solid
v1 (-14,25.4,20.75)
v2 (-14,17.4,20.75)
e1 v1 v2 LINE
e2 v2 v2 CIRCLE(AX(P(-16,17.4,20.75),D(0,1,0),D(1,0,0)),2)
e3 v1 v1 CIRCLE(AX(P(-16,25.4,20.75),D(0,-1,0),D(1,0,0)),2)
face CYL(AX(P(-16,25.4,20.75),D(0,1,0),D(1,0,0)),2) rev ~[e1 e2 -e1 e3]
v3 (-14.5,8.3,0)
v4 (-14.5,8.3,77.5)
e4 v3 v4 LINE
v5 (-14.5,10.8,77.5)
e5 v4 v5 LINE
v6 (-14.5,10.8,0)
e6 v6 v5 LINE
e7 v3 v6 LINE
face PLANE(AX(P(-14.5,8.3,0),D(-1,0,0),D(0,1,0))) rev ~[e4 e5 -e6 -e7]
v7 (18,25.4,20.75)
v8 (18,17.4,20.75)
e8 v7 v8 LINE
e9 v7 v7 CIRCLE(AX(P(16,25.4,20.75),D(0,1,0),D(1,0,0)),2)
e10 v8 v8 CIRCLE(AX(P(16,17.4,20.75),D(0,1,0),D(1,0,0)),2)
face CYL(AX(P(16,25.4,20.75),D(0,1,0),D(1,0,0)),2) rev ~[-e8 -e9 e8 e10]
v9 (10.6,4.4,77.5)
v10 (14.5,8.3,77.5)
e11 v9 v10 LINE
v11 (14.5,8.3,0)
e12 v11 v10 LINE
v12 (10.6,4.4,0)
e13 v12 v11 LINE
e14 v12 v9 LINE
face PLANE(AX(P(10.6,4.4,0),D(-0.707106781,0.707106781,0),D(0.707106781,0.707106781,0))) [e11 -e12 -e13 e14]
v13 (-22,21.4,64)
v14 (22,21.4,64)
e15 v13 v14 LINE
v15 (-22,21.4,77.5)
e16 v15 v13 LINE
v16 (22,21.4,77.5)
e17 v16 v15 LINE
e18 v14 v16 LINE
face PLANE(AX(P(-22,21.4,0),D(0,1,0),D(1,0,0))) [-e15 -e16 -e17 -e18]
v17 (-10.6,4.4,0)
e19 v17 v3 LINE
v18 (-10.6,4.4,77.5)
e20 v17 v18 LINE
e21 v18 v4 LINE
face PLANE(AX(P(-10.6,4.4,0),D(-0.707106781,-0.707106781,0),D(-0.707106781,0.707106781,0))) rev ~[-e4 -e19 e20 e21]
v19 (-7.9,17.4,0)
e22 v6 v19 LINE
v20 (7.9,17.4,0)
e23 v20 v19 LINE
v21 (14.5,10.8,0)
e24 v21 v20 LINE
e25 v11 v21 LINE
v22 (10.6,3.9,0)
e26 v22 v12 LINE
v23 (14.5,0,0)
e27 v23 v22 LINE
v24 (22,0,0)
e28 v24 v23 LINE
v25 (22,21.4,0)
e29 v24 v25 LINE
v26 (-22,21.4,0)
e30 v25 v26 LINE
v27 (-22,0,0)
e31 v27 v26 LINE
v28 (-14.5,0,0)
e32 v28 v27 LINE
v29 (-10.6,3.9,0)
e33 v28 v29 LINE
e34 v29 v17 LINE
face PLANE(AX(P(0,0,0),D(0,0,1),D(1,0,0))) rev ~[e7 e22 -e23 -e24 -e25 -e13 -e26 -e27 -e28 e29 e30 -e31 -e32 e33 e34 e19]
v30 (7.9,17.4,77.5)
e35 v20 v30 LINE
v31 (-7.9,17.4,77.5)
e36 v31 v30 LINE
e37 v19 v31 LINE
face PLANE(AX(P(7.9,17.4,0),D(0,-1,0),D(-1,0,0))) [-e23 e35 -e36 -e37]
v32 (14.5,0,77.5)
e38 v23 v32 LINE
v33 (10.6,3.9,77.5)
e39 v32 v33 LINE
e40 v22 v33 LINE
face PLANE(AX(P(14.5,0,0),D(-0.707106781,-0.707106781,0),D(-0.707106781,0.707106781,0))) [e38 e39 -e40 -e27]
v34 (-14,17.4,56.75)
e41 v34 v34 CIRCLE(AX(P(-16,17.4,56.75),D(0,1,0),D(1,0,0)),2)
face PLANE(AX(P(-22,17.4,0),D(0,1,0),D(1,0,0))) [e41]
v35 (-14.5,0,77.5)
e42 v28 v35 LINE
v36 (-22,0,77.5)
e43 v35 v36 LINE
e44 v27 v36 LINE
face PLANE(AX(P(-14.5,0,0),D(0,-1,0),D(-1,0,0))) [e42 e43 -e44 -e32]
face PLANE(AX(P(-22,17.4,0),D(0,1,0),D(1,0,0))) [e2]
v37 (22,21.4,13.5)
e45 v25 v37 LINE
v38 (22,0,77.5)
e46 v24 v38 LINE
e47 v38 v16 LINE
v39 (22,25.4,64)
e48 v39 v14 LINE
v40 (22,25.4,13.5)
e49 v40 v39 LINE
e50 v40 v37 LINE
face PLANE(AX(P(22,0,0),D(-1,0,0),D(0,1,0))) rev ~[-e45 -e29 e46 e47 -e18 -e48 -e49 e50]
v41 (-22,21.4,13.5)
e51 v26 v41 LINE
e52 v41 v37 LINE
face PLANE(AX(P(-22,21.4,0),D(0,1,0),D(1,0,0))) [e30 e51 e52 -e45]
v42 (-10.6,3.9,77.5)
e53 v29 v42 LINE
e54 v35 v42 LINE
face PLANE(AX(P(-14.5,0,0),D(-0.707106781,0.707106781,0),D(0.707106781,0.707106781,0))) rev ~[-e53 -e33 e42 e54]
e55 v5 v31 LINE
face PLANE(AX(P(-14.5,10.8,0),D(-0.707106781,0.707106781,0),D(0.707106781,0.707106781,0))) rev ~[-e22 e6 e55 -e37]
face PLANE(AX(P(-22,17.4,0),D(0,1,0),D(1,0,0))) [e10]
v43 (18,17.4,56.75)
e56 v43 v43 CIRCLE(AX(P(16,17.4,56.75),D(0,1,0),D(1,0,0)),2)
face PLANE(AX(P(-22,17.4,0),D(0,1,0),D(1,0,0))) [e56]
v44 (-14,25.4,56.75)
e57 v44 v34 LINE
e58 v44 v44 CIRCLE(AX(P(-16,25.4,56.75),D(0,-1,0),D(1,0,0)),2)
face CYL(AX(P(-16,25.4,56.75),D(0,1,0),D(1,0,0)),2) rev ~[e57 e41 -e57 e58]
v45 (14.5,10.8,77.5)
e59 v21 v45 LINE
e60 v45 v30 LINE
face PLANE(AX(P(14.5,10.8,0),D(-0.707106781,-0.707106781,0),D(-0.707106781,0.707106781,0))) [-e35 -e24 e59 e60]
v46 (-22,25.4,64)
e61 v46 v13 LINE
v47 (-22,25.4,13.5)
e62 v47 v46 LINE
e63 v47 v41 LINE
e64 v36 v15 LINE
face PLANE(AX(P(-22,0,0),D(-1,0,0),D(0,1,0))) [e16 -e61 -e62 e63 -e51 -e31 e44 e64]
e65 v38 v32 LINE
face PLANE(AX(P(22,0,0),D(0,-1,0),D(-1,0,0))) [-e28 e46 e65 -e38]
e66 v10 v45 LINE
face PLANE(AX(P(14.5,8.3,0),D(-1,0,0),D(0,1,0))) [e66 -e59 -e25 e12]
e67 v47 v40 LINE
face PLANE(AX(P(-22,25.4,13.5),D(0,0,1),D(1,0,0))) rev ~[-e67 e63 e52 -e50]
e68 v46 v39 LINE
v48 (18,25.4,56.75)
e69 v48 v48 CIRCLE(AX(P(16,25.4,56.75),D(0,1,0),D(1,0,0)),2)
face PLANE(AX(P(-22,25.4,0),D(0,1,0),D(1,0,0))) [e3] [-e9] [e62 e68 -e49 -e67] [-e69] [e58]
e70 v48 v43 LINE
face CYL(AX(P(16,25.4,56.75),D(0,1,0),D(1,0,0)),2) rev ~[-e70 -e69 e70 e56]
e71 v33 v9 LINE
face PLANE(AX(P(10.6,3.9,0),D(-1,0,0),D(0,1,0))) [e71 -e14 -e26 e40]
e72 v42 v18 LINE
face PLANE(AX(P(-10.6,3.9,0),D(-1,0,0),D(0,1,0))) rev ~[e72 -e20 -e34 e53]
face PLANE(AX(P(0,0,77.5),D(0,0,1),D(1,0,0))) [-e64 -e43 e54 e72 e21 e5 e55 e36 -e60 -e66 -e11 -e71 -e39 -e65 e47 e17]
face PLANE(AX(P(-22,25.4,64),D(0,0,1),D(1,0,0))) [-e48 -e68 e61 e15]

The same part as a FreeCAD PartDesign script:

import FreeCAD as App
import Part
import Sketcher
Q = App.Units.Quantity

doc = App.newDocument("Part")
body = doc.addObject("PartDesign::Body", "Body")

sketch1 = body.newObject("Sketcher::SketchObject", "Sketch")
sketch1.AttachmentSupport = (doc.getObject("XY_Plane"), [""])
sketch1.MapMode = "FlatFace"
sketch1.addGeometry([
    Part.LineSegment(App.Vector(-22, 0, 0), App.Vector(-14.5, 0, 0)),
    Part.LineSegment(App.Vector(-14.5, 0, 0), App.Vector(-10.6, 3.9, 0)),
    Part.LineSegment(App.Vector(-10.6, 3.9, 0), App.Vector(-10.6, 4.4, 0)),
    Part.LineSegment(App.Vector(-10.6, 4.4, 0), App.Vector(-14.5, 8.3, 0)),
    Part.LineSegment(App.Vector(-14.5, 8.3, 0), App.Vector(-14.5, 10.8, 0)),
    Part.LineSegment(App.Vector(-14.5, 10.8, 0), App.Vector(-7.9, 17.4, 0)),
    Part.LineSegment(App.Vector(-7.9, 17.4, 0), App.Vector(7.9, 17.4, 0)),
    Part.LineSegment(App.Vector(7.9, 17.4, 0), App.Vector(14.5, 10.8, 0)),
    Part.LineSegment(App.Vector(14.5, 10.8, 0), App.Vector(14.5, 8.3, 0)),
    Part.LineSegment(App.Vector(14.5, 8.3, 0), App.Vector(10.6, 4.4, 0)),
    Part.LineSegment(App.Vector(10.6, 4.4, 0), App.Vector(10.6, 3.9, 0)),
    Part.LineSegment(App.Vector(10.6, 3.9, 0), App.Vector(14.5, 0, 0)),
    Part.LineSegment(App.Vector(14.5, 0, 0), App.Vector(22, 0, 0)),
    Part.LineSegment(App.Vector(22, 0, 0), App.Vector(22, 25.4, 0)),
    Part.LineSegment(App.Vector(22, 25.4, 0), App.Vector(-22, 25.4, 0)),
    Part.LineSegment(App.Vector(-22, 25.4, 0), App.Vector(-22, 0, 0)),
], False)
sketch1.addConstraint([
    Sketcher.Constraint("Coincident", 0, 2, 1, 1),
    Sketcher.Constraint("Coincident", 1, 2, 2, 1),
    Sketcher.Constraint("Coincident", 2, 2, 3, 1),
    Sketcher.Constraint("Coincident", 3, 2, 4, 1),
    Sketcher.Constraint("Coincident", 4, 2, 5, 1),
    Sketcher.Constraint("Coincident", 5, 2, 6, 1),
    Sketcher.Constraint("Coincident", 6, 2, 7, 1),
    Sketcher.Constraint("Coincident", 7, 2, 8, 1),
    Sketcher.Constraint("Coincident", 8, 2, 9, 1),
    Sketcher.Constraint("Coincident", 9, 2, 10, 1),
    Sketcher.Constraint("Coincident", 10, 2, 11, 1),
    Sketcher.Constraint("Coincident", 11, 2, 12, 1),
    Sketcher.Constraint("Coincident", 12, 2, 13, 1),
    Sketcher.Constraint("Coincident", 13, 2, 14, 1),
    Sketcher.Constraint("Coincident", 14, 2, 15, 1),
    Sketcher.Constraint("Coincident", 15, 2, 0, 1),
    Sketcher.Constraint("Horizontal", 0),
    Sketcher.Constraint("Vertical", 2),
    Sketcher.Constraint("Vertical", 4),
    Sketcher.Constraint("Horizontal", 6),
    Sketcher.Constraint("Vertical", 8),
    Sketcher.Constraint("Vertical", 10),
    Sketcher.Constraint("Horizontal", 12),
    Sketcher.Constraint("Vertical", 13),
    Sketcher.Constraint("Horizontal", 14),
    Sketcher.Constraint("Vertical", 15),
    Sketcher.Constraint("Symmetric", 0, 2, 11, 2, -1, 1),
    Sketcher.Constraint("Symmetric", 4, 2, 7, 2, -2),
    Sketcher.Constraint("Symmetric", 2, 2, 9, 2, -2),
    Sketcher.Constraint("Symmetric", 12, 2, 15, 2, -2),
    Sketcher.Constraint("Perpendicular", 1, 3),
    Sketcher.Constraint("Perpendicular", 3, 5),
    Sketcher.Constraint("Perpendicular", 5, 7),
    Sketcher.Constraint("Perpendicular", 7, 9),
    Sketcher.Constraint("Perpendicular", 9, 11),
    Sketcher.Constraint("Horizontal", 3, 2, 8, 2),
    Sketcher.Constraint("Vertical", 0, 2, 3, 2),
    Sketcher.Constraint("DistanceX", 14, 2, 14, 1, Q("44 mm")),
    Sketcher.Constraint("DistanceX", 0, 1, 0, 2, Q("7.5 mm")),
    Sketcher.Constraint("DistanceY", 2, 1, 2, 2, Q("0.5 mm")),
    Sketcher.Constraint("DistanceY", 4, 1, 4, 2, Q("2.5 mm")),
    Sketcher.Constraint("DistanceY", 13, 1, 13, 2, Q("25.4 mm")),
    Sketcher.Constraint("DistanceX", 6, 1, 6, 2, Q("15.8 mm")),
    Sketcher.Constraint("DistanceY", 2, 2, 5, 2, Q("13 mm")),
])
pad1 = body.newObject("PartDesign::Pad", "Pad")
pad1.Profile = sketch1
pad1.Length = 77.5

sketch2 = body.newObject("Sketcher::SketchObject", "Sketch001")
sketch2.AttachmentSupport = (doc.getObject("XZ_Plane"), [""])
sketch2.MapMode = "FlatFace"
sketch2.AttachmentOffset = App.Placement(App.Vector(0, 0, -25.4), App.Rotation())
sketch2.addGeometry([
    Part.Circle(App.Vector(-16, 20.8, 0), App.Vector(0, 0, 1), 2),
    Part.Circle(App.Vector(-16, 56.8, 0), App.Vector(0, 0, 1), 2),
    Part.Circle(App.Vector(16, 20.8, 0), App.Vector(0, 0, 1), 2),
    Part.Circle(App.Vector(16, 56.8, 0), App.Vector(0, 0, 1), 2),
], False)
sketch2.addConstraint([
    Sketcher.Constraint("Equal", 0, 1),
    Sketcher.Constraint("Equal", 1, 2),
    Sketcher.Constraint("Equal", 2, 3),
    Sketcher.Constraint("Symmetric", 0, 3, 2, 3, -2),
    Sketcher.Constraint("Symmetric", 1, 3, 3, 3, -2),
    Sketcher.Constraint("Vertical", 0, 3, 1, 3),
    Sketcher.Constraint("Diameter", 0, Q("4 mm")),
    Sketcher.Constraint("DistanceY", 0, 3, 1, 3, Q("36 mm")),
    Sketcher.Constraint("DistanceX", 0, 3, 2, 3, Q("32 mm")),
    Sketcher.Constraint("DistanceY", -1, 1, 0, 3, Q("20.75 mm")),
])
pocket1 = body.newObject("PartDesign::Pocket", "Pocket")
pocket1.Profile = sketch2
pocket1.Length = 8
pocket1.Reversed = True

sketch3 = body.newObject("Sketcher::SketchObject", "Sketch002")
sketch3.AttachmentSupport = (doc.getObject("XZ_Plane"), [""])
sketch3.MapMode = "FlatFace"
sketch3.AttachmentOffset = App.Placement(App.Vector(0, 0, -25.4), App.Rotation())
sketch3.addGeometry([
    Part.LineSegment(App.Vector(22, 78, 0), App.Vector(22, 64, 0)),
    Part.LineSegment(App.Vector(22, 64, 0), App.Vector(-22, 64, 0)),
    Part.LineSegment(App.Vector(-22, 64, 0), App.Vector(-22, 78, 0)),
    Part.LineSegment(App.Vector(-22, 78, 0), App.Vector(22, 78, 0)),
    Part.LineSegment(App.Vector(22, 14, 0), App.Vector(22, 0, 0)),
    Part.LineSegment(App.Vector(22, 0, 0), App.Vector(-22, 0, 0)),
    Part.LineSegment(App.Vector(-22, 0, 0), App.Vector(-22, 14, 0)),
    Part.LineSegment(App.Vector(-22, 14, 0), App.Vector(22, 14, 0)),
], False)
sketch3.addConstraint([
    Sketcher.Constraint("Coincident", 0, 2, 1, 1),
    Sketcher.Constraint("Coincident", 1, 2, 2, 1),
    Sketcher.Constraint("Coincident", 2, 2, 3, 1),
    Sketcher.Constraint("Coincident", 3, 2, 0, 1),
    Sketcher.Constraint("Coincident", 4, 2, 5, 1),
    Sketcher.Constraint("Coincident", 5, 2, 6, 1),
    Sketcher.Constraint("Coincident", 6, 2, 7, 1),
    Sketcher.Constraint("Coincident", 7, 2, 4, 1),
    Sketcher.Constraint("Vertical", 0),
    Sketcher.Constraint("Horizontal", 1),
    Sketcher.Constraint("Vertical", 2),
    Sketcher.Constraint("Horizontal", 3),
    Sketcher.Constraint("Vertical", 4),
    Sketcher.Constraint("Horizontal", 5),
    Sketcher.Constraint("Vertical", 6),
    Sketcher.Constraint("Horizontal", 7),
    Sketcher.Constraint("Symmetric", 4, 2, 5, 2, -1, 1),
    Sketcher.Constraint("Vertical", 3, 2, 4, 2),
    Sketcher.Constraint("Vertical", 2, 2, 5, 2),
    Sketcher.Constraint("Equal", 2, 4),
    Sketcher.Constraint("DistanceY", 6, 2, 1, 2, Q("50.5 mm")),
    Sketcher.Constraint("DistanceX", 1, 2, 1, 1, Q("44 mm")),
    Sketcher.Constraint("DistanceY", 0, 2, 0, 1, Q("13.5 mm")),
])
pocket2 = body.newObject("PartDesign::Pocket", "Pocket001")
pocket2.Profile = sketch3
pocket2.Length = 4
pocket2.Reversed = True

doc.recompute()
